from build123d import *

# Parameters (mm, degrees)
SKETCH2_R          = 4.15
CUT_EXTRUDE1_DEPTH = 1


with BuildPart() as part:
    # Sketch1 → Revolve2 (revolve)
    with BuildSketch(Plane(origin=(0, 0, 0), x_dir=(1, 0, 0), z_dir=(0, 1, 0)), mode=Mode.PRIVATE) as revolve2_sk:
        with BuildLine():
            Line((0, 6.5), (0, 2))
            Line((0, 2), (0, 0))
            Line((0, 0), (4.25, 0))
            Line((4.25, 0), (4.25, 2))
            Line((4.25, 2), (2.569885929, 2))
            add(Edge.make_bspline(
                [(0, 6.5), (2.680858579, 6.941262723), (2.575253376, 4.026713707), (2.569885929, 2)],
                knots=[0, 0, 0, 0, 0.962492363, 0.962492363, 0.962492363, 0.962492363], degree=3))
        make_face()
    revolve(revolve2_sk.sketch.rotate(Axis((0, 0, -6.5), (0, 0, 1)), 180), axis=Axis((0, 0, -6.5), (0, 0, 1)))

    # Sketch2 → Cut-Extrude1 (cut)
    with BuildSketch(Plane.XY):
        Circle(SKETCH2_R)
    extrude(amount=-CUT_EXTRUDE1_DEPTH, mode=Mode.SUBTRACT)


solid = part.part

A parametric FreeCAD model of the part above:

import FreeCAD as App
import Part
import Sketcher
from FreeCAD import Vector
Q = App.Units.Quantity

doc = App.newDocument("Part")
params = doc.addObject("Spreadsheet::Sheet", "Params")
for row, (alias, value) in enumerate([
    ("sketch1_width", "4.25 mm"),
    ("revolution_angle", "360 deg"),
    ("sketch2_diameter", "8.3 mm"),
    ("pocket1_length", "1 mm"),
], start=1):
    params.set(f"A{row}", alias)
    params.set(f"B{row}", "=" + value)
    params.setAlias(f"B{row}", alias)

body = doc.addObject("PartDesign::Body", "Body")

sketch1 = body.newObject("Sketcher::SketchObject", "Sketch")
sketch1.AttachmentSupport = (doc.getObject("XZ_Plane"), [""])
sketch1.MapMode = "FlatFace"
sketch1.addGeometry(Part.LineSegment(Vector(0, -6.5, 0), Vector(0, 0, 0)), False)
sketch1.addGeometry(Part.LineSegment(Vector(0, 0, 0), Vector(4.25, 0, 0)), False)
sketch1.addGeometry(Part.LineSegment(Vector(4.25, 0, 0), Vector(4.25, -2, 0)), False)
sketch1.addGeometry(Part.LineSegment(Vector(4.25, -2, 0), Vector(2.569886, -2, 0)), False)
sketch1.addGeometry(Part.BSplineCurve([Vector(0, -6.5, 0), Vector(2.680859, -6.941263, 0), Vector(2.575253, -4.026714, 0), Vector(2.569886, -2, 0)], [4, 4], [0, 0.962492363], False, 3, [1, 1, 1, 1], False), False)
sketch1.addConstraint(Sketcher.Constraint("Block", 4))
sketch1.addConstraint(Sketcher.Constraint("Coincident", 0, 2, 1, 1))
sketch1.addConstraint(Sketcher.Constraint("Coincident", 1, 2, 2, 1))
sketch1.addConstraint(Sketcher.Constraint("Coincident", 2, 2, 3, 1))
sketch1.addConstraint(Sketcher.Constraint("Coincident", 3, 2, 4, 2))
sketch1.addConstraint(Sketcher.Constraint("Coincident", 4, 1, 0, 1))
sketch1.addConstraint(Sketcher.Constraint("Vertical", 0))
sketch1.addConstraint(Sketcher.Constraint("Horizontal", 1))
sketch1.addConstraint(Sketcher.Constraint("Vertical", 2))
sketch1.addConstraint(Sketcher.Constraint("Horizontal", 3))
sketch1.addConstraint(Sketcher.Constraint("PointOnObject", 1, 2, -1))
sketch1.addConstraint(Sketcher.Constraint("DistanceX", 1, 1, 1, 2, Q("4.25 mm")))
sketch1.setExpression("Constraints[11]", "Params.sketch1_width")
revolution = body.newObject("PartDesign::Revolution", "Revolution")
revolution.Profile = sketch1
revolution.ReferenceAxis = (sketch1, ["V_Axis"])
revolution.setExpression("Angle", "Params.revolution_angle")

sketch2 = body.newObject("Sketcher::SketchObject", "Sketch001")
sketch2.AttachmentSupport = (doc.getObject("XY_Plane"), [""])
sketch2.MapMode = "FlatFace"
sketch2.addGeometry(Part.Circle(Vector(0, 0, 0), Vector(0, 0, 1), 4.2), False)
sketch2.addConstraint(Sketcher.Constraint("Coincident", 0, 3, -1, 1))
sketch2.addConstraint(Sketcher.Constraint("Diameter", 0, Q("8.3 mm")))
sketch2.setExpression("Constraints[1]", "Params.sketch2_diameter")
pocket1 = body.newObject("PartDesign::Pocket", "Pocket")
pocket1.Profile = sketch2
pocket1.setExpression("Length", "Params.pocket1_length")

doc.recompute()
